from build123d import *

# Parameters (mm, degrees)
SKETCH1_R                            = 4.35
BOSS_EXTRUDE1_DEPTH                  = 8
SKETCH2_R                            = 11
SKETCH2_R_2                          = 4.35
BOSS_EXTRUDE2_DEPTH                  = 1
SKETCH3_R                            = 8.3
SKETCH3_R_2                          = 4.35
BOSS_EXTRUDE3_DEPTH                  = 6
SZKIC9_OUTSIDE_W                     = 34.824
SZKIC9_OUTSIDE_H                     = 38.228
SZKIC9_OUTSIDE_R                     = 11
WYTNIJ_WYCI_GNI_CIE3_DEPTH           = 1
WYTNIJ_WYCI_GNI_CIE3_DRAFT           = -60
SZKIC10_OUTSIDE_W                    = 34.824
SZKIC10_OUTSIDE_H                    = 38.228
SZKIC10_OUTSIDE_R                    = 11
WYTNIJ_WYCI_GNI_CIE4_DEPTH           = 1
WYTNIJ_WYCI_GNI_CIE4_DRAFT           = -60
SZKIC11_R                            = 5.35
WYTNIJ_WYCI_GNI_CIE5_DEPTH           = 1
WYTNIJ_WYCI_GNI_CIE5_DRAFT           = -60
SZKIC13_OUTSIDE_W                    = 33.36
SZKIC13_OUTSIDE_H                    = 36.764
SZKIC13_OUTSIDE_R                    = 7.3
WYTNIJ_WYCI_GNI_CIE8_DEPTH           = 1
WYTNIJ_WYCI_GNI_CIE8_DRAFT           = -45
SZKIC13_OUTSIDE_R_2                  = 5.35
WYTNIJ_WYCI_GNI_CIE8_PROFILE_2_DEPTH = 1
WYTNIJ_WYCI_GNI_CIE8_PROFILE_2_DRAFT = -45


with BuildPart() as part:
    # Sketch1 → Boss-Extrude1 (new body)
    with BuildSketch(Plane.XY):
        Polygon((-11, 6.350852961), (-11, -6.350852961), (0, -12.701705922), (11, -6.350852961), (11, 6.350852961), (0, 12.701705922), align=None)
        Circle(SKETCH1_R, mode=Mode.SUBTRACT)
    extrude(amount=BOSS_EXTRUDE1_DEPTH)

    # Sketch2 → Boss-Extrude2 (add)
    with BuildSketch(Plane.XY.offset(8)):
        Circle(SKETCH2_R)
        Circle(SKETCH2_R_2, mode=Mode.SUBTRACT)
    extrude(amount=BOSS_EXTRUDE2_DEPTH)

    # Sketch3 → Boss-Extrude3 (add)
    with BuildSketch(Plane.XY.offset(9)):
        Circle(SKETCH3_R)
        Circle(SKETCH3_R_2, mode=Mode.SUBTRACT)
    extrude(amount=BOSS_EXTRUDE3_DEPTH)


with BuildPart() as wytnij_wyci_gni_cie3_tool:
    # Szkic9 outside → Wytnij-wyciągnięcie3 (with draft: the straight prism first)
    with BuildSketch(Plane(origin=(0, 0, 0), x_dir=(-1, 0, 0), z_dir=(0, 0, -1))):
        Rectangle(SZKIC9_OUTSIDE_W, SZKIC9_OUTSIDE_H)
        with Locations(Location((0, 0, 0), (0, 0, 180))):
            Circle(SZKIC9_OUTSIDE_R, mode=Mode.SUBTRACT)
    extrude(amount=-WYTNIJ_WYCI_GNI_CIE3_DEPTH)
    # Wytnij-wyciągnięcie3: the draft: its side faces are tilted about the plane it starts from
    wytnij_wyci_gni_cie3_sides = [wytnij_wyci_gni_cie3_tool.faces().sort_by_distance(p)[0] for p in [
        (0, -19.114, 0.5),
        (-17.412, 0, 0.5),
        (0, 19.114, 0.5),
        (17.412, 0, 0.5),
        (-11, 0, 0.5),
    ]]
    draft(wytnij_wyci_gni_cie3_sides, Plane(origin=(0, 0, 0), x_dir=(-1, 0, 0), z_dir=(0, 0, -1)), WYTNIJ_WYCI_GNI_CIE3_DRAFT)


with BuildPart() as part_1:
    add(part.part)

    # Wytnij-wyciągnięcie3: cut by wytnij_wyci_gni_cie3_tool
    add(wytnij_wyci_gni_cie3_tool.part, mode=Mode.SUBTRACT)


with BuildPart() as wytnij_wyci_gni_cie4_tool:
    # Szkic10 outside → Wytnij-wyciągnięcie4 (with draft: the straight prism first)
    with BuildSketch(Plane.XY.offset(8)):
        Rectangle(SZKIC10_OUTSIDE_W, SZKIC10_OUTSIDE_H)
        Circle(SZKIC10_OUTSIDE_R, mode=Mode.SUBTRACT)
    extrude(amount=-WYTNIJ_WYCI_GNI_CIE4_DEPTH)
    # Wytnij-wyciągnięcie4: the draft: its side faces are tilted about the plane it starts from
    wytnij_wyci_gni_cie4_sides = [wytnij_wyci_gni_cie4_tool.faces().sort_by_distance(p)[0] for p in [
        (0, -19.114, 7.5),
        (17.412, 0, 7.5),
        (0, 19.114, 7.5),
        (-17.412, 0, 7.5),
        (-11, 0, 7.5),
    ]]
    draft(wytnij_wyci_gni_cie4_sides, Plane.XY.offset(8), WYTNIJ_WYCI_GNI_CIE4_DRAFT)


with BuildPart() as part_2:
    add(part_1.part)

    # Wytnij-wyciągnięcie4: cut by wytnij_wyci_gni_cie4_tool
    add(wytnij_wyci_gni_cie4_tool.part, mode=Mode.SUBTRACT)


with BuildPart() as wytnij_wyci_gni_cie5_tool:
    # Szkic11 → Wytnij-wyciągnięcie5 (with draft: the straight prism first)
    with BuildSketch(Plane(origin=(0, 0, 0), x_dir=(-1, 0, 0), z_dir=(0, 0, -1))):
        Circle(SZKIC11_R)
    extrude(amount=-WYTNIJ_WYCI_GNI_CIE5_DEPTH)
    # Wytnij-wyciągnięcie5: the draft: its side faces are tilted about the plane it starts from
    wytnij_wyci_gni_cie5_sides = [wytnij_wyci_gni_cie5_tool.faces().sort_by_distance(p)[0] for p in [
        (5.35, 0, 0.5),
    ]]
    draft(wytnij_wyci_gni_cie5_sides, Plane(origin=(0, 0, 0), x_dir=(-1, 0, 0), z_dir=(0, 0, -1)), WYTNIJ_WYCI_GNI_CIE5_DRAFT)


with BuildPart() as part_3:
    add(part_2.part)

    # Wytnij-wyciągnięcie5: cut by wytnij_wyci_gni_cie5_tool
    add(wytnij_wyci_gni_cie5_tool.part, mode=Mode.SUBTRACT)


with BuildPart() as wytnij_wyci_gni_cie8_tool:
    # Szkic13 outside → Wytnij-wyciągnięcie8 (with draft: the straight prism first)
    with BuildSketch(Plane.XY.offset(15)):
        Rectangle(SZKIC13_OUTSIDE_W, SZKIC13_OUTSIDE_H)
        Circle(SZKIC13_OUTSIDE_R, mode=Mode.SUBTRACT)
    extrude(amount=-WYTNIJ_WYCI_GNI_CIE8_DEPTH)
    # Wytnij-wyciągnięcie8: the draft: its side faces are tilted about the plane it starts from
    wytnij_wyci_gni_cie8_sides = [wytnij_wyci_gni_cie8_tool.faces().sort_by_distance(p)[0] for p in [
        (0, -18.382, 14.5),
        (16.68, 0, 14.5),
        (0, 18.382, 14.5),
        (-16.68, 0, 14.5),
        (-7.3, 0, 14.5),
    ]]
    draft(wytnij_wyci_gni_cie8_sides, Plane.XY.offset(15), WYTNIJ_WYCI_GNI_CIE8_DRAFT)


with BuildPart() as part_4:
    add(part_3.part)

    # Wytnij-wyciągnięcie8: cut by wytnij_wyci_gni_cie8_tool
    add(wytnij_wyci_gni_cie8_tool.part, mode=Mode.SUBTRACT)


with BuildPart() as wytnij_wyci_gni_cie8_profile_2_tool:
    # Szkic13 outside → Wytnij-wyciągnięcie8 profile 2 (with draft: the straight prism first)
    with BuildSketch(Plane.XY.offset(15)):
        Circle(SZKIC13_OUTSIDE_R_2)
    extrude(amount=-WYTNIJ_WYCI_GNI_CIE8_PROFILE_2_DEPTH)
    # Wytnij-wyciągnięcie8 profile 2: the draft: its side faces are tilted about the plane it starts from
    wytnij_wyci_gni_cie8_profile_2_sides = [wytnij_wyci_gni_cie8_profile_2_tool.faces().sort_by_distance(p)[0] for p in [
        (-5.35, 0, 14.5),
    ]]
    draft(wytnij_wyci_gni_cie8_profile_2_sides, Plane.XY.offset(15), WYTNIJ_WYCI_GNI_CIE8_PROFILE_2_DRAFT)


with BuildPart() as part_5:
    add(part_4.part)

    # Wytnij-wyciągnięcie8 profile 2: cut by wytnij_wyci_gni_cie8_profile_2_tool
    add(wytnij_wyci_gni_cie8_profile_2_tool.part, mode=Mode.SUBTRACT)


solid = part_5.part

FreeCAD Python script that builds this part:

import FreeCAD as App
import Part
import Sketcher

V = App.Vector
Q = App.Units.Quantity


def faces_at(feature, points):
    """Names of the faces that lie closest to the given points."""
    faces = feature.Shape.Faces
    near = lambda p: min(range(len(faces)), key=lambda i: faces[i].distToShape(Part.Vertex(*p))[0])
    return sorted({f"Face{near(p) + 1}" for p in points})

doc = App.newDocument("Part")
params = doc.addObject("Spreadsheet::Sheet", "Params")
for row, (alias, value) in enumerate([
    ("sketch1_diameter", "8.7 mm"),
    ("pad1_length", "8 mm"),
    ("sketch2_diameter", "22 mm"),
    ("sketch2_diameter2", "8.7 mm"),
    ("pad2_length", "1 mm"),
    ("sketch3_diameter", "16.6 mm"),
    ("sketch3_diameter2", "8.7 mm"),
    ("pad3_length", "6 mm"),
    ("sketch4_diameter", "22 mm"),
    ("pad4_length", "1 mm"),
    ("draft_angle", "60 deg"),
    ("sketch5_diameter", "22 mm"),
    ("pad5_length", "1 mm"),
    ("draft2_angle", "60 deg"),
    ("sketch6_diameter", "10.7 mm"),
    ("pad6_length", "1 mm"),
    ("draft3_angle", "60 deg"),
    ("sketch7_diameter", "14.6 mm"),
    ("sketch7_width", "33.36 mm"),
    ("pad7_length", "1 mm"),
    ("draft4_angle", "45 deg"),
    ("sketch8_diameter", "10.7 mm"),
    ("pad8_length", "1 mm"),
    ("draft5_angle", "45 deg"),
], start=1):
    params.set(f"A{row}", alias)
    params.set(f"B{row}", "=" + value)
    params.setAlias(f"B{row}", alias)

body = doc.addObject("PartDesign::Body", "Body")

sketch1 = body.newObject("Sketcher::SketchObject", "Sketch")
sketch1.AttachmentSupport = (doc.getObject("XY_Plane"), [""])
sketch1.MapMode = "FlatFace"
sketch1.addGeometry(Part.LineSegment(V(-11, 6.4, 0), V(-11, -6.4, 0)), False)
sketch1.addGeometry(Part.LineSegment(V(-11, -6.4, 0), V(0, -12.7, 0)), False)
sketch1.addGeometry(Part.LineSegment(V(0, -12.7, 0), V(11, -6.4, 0)), False)
sketch1.addGeometry(Part.LineSegment(V(11, -6.4, 0), V(11, 6.4, 0)), False)
sketch1.addGeometry(Part.LineSegment(V(11, 6.4, 0), V(0, 12.7, 0)), False)
sketch1.addGeometry(Part.LineSegment(V(0, 12.7, 0), V(-11, 6.4, 0)), False)
sketch1.addGeometry(Part.Circle(V(0, 0, 0), V(0, 0, 1), 4.3), False)
sketch1.addConstraint(Sketcher.Constraint("Coincident", 0, 2, 1, 1))
sketch1.addConstraint(Sketcher.Constraint("Coincident", 1, 2, 2, 1))
sketch1.addConstraint(Sketcher.Constraint("Coincident", 2, 2, 3, 1))
sketch1.addConstraint(Sketcher.Constraint("Coincident", 3, 2, 4, 1))
sketch1.addConstraint(Sketcher.Constraint("Coincident", 4, 2, 5, 1))
sketch1.addConstraint(Sketcher.Constraint("Coincident", 5, 2, 0, 1))
sketch1.addConstraint(Sketcher.Constraint("Vertical", 0))
sketch1.addConstraint(Sketcher.Constraint("Vertical", 3))
sketch1.addConstraint(Sketcher.Constraint("Coincident", 6, 3, -1, 1))
sketch1.addConstraint(Sketcher.Constraint("Symmetric", 0, 2, 3, 2, -1, 1))
sketch1.addConstraint(Sketcher.Constraint("Symmetric", 1, 2, 4, 2, -1, 1))
sketch1.addConstraint(Sketcher.Constraint("PointOnObject", 1, 2, -2))
sketch1.addConstraint(Sketcher.Constraint("Parallel", 2, 5))
sketch1.addConstraint(Sketcher.Constraint("Horizontal", 0, 2, 2, 2))
sketch1.addConstraint(Sketcher.Constraint("Diameter", 6, Q("8.7 mm")))
sketch1.addConstraint(Sketcher.Constraint("Angle", 1, Q("-30 deg")))
sketch1.addConstraint(Sketcher.Constraint("DistanceX", 0, 2, -1, 1, Q("11 mm")))
sketch1.addConstraint(Sketcher.Constraint("DistanceY", 0, 2, 0, 1, Q("12.701706 mm")))
sketch1.setExpression("Constraints[14]", "Params.sketch1_diameter")
pad1 = body.newObject("PartDesign::Pad", "Pad")
pad1.Profile = sketch1
pad1.setExpression("Length", "Params.pad1_length")

sketch2 = body.newObject("Sketcher::SketchObject", "Sketch001")
sketch2.AttachmentSupport = (doc.getObject("XY_Plane"), [""])
sketch2.MapMode = "FlatFace"
sketch2.AttachmentOffset = App.Placement(V(0, 0, 8), App.Rotation())
sketch2.addGeometry(Part.Circle(V(0, 0, 0), V(0, 0, 1), 11), False)
sketch2.addGeometry(Part.Circle(V(0, 0, 0), V(0, 0, 1), 4.3), False)
sketch2.addConstraint(Sketcher.Constraint("Coincident", 0, 3, -1, 1))
sketch2.addConstraint(Sketcher.Constraint("Coincident", 1, 3, -1, 1))
sketch2.addConstraint(Sketcher.Constraint("Diameter", 0, Q("22 mm")))
sketch2.addConstraint(Sketcher.Constraint("Diameter", 1, Q("8.7 mm")))
sketch2.setExpression("Constraints[2]", "Params.sketch2_diameter")
sketch2.setExpression("Constraints[3]", "Params.sketch2_diameter2")
pad2 = body.newObject("PartDesign::Pad", "Pad001")
pad2.Profile = sketch2
pad2.setExpression("Length", "Params.pad2_length")

sketch3 = body.newObject("Sketcher::SketchObject", "Sketch002")
sketch3.AttachmentSupport = (doc.getObject("XY_Plane"), [""])
sketch3.MapMode = "FlatFace"
sketch3.AttachmentOffset = App.Placement(V(0, 0, 9), App.Rotation())
sketch3.addGeometry(Part.Circle(V(0, 0, 0), V(0, 0, 1), 8.3), False)
sketch3.addGeometry(Part.Circle(V(0, 0, 0), V(0, 0, 1), 4.3), False)
sketch3.addConstraint(Sketcher.Constraint("Coincident", 0, 3, -1, 1))
sketch3.addConstraint(Sketcher.Constraint("Coincident", 1, 3, -1, 1))
sketch3.addConstraint(Sketcher.Constraint("Diameter", 0, Q("16.6 mm")))
sketch3.addConstraint(Sketcher.Constraint("Diameter", 1, Q("8.7 mm")))
sketch3.setExpression("Constraints[2]", "Params.sketch3_diameter")
sketch3.setExpression("Constraints[3]", "Params.sketch3_diameter2")
pad3 = body.newObject("PartDesign::Pad", "Pad002")
pad3.Profile = sketch3
pad3.setExpression("Length", "Params.pad3_length")
body2 = doc.addObject("PartDesign::Body", "Body001")

sketch4 = body2.newObject("Sketcher::SketchObject", "Sketch003")
sketch4.AttachmentSupport = (doc.getObject("XY_Plane001"), [""])
sketch4.MapMode = "FlatFace"
sketch4.addGeometry(Part.LineSegment(V(17, 19, 0), V(17, -19, 0)), False)
sketch4.addGeometry(Part.LineSegment(V(17, -19, 0), V(-17, -19, 0)), False)
sketch4.addGeometry(Part.LineSegment(V(-17, -19, 0), V(-17, 19, 0)), False)
sketch4.addGeometry(Part.LineSegment(V(-17, 19, 0), V(17, 19, 0)), False)
sketch4.addGeometry(Part.Circle(V(0, 0, 0), V(0, 0, 1), 11), False)
sketch4.addConstraint(Sketcher.Constraint("Coincident", 0, 2, 1, 1))
sketch4.addConstraint(Sketcher.Constraint("Coincident", 1, 2, 2, 1))
sketch4.addConstraint(Sketcher.Constraint("Coincident", 2, 2, 3, 1))
sketch4.addConstraint(Sketcher.Constraint("Coincident", 3, 2, 0, 1))
sketch4.addConstraint(Sketcher.Constraint("Vertical", 0))
sketch4.addConstraint(Sketcher.Constraint("Horizontal", 1))
sketch4.addConstraint(Sketcher.Constraint("Vertical", 2))
sketch4.addConstraint(Sketcher.Constraint("Horizontal", 3))
sketch4.addConstraint(Sketcher.Constraint("Coincident", 4, 3, -1, 1))
sketch4.addConstraint(Sketcher.Constraint("Symmetric", 0, 2, 2, 2, -1, 1))
sketch4.addConstraint(Sketcher.Constraint("Diameter", 4, Q("22 mm")))
sketch4.addConstraint(Sketcher.Constraint("DistanceX", 1, 2, 1, 1, Q("34.824 mm")))
sketch4.addConstraint(Sketcher.Constraint("DistanceY", 0, 2, 0, 1, Q("38.228 mm")))
sketch4.setExpression("Constraints[10]", "Params.sketch4_diameter")
pad4 = body2.newObject("PartDesign::Pad", "Pad003")
pad4.Profile = sketch4
pad4.setExpression("Length", "Params.pad4_length")
doc.recompute()

draft = body2.newObject("PartDesign::Draft", "Draft")
draft.Base = (pad4, faces_at(pad4, [
    (0, -19.114, 0.5),
    (-17.412, 0, 0.5),
    (0, 19.114, 0.5),
    (17.412, 0, 0.5),
    (-11, 0, 0.5),
]))
draft.NeutralPlane = (doc.getObject("XY_Plane001"), [""])
draft.setExpression("Angle", "Params.draft_angle")
draft.Reversed = False
doc.recompute()

boolean = body.newObject("PartDesign::Boolean", "Boolean")
boolean.Type = "Cut"
boolean.addObjects([body2])
body3 = doc.addObject("PartDesign::Body", "Body002")

sketch5 = body3.newObject("Sketcher::SketchObject", "Sketch004")
sketch5.AttachmentSupport = (doc.getObject("XY_Plane002"), [""])
sketch5.MapMode = "FlatFace"
sketch5.AttachmentOffset = App.Placement(V(0, 0, 8), App.Rotation())
sketch5.addGeometry(Part.LineSegment(V(-17, 19, 0), V(-17, -19, 0)), False)
sketch5.addGeometry(Part.LineSegment(V(-17, -19, 0), V(17, -19, 0)), False)
sketch5.addGeometry(Part.LineSegment(V(17, -19, 0), V(17, 19, 0)), False)
sketch5.addGeometry(Part.LineSegment(V(17, 19, 0), V(-17, 19, 0)), False)
sketch5.addGeometry(Part.Circle(V(0, 0, 0), V(0, 0, 1), 11), False)
sketch5.addConstraint(Sketcher.Constraint("Coincident", 0, 2, 1, 1))
sketch5.addConstraint(Sketcher.Constraint("Coincident", 1, 2, 2, 1))
sketch5.addConstraint(Sketcher.Constraint("Coincident", 2, 2, 3, 1))
sketch5.addConstraint(Sketcher.Constraint("Coincident", 3, 2, 0, 1))
sketch5.addConstraint(Sketcher.Constraint("Vertical", 0))
sketch5.addConstraint(Sketcher.Constraint("Horizontal", 1))
sketch5.addConstraint(Sketcher.Constraint("Vertical", 2))
sketch5.addConstraint(Sketcher.Constraint("Horizontal", 3))
sketch5.addConstraint(Sketcher.Constraint("Coincident", 4, 3, -1, 1))
sketch5.addConstraint(Sketcher.Constraint("Symmetric", 0, 2, 2, 2, -1, 1))
sketch5.addConstraint(Sketcher.Constraint("Diameter", 4, Q("22 mm")))
sketch5.addConstraint(Sketcher.Constraint("DistanceX", 1, 1, 1, 2, Q("34.824 mm")))
sketch5.addConstraint(Sketcher.Constraint("DistanceY", 0, 2, 0, 1, Q("38.228 mm")))
sketch5.setExpression("Constraints[10]", "Params.sketch5_diameter")
pad5 = body3.newObject("PartDesign::Pad", "Pad004")
pad5.Profile = sketch5
pad5.setExpression("Length", "Params.pad5_length")
pad5.Reversed = True
doc.recompute()

datumplane = body3.newObject("PartDesign::Plane", "DatumPlane")
datumplane.AttachmentSupport = (doc.getObject("XY_Plane002"), [""])
datumplane.MapMode = "FlatFace"
datumplane.AttachmentOffset = App.Placement(V(0, 0, 8), App.Rotation())
draft2 = body3.newObject("PartDesign::Draft", "Draft001")
draft2.Base = (pad5, faces_at(pad5, [
    (0, -19.114, 7.5),
    (17.412, 0, 7.5),
    (0, 19.114, 7.5),
    (-17.412, 0, 7.5),
    (-11, 0, 7.5),
]))
draft2.NeutralPlane = (datumplane, [""])
draft2.setExpression("Angle", "Params.draft2_angle")
draft2.Reversed = True
doc.recompute()

boolean2 = body.newObject("PartDesign::Boolean", "Boolean001")
boolean2.Type = "Cut"
boolean2.addObjects([body3])
body4 = doc.addObject("PartDesign::Body", "Body003")

sketch6 = body4.newObject("Sketcher::SketchObject", "Sketch005")
sketch6.AttachmentSupport = (doc.getObject("XY_Plane003"), [""])
sketch6.MapMode = "FlatFace"
sketch6.addGeometry(Part.Circle(V(0, 0, 0), V(0, 0, 1), 5), False)
sketch6.addConstraint(Sketcher.Constraint("Coincident", 0, 3, -1, 1))
sketch6.addConstraint(Sketcher.Constraint("Diameter", 0, Q("10.7 mm")))
sketch6.setExpression("Constraints[1]", "Params.sketch6_diameter")
pad6 = body4.newObject("PartDesign::Pad", "Pad005")
pad6.Profile = sketch6
pad6.setExpression("Length", "Params.pad6_length")
doc.recompute()

draft3 = body4.newObject("PartDesign::Draft", "Draft002")
draft3.Base = (pad6, faces_at(pad6, [(5.35, 0, 0.5)]))
draft3.NeutralPlane = (doc.getObject("XY_Plane003"), [""])
draft3.setExpression("Angle", "Params.draft3_angle")
draft3.Reversed = False
doc.recompute()

boolean3 = body.newObject("PartDesign::Boolean", "Boolean002")
boolean3.Type = "Cut"
boolean3.addObjects([body4])
body5 = doc.addObject("PartDesign::Body", "Body004")

sketch7 = body5.newObject("Sketcher::SketchObject", "Sketch006")
sketch7.AttachmentSupport = (doc.getObject("XY_Plane004"), [""])
sketch7.MapMode = "FlatFace"
sketch7.AttachmentOffset = App.Placement(V(0, 0, 15), App.Rotation())
sketch7.addGeometry(Part.LineSegment(V(-17, 18, 0), V(-17, -18, 0)), False)
sketch7.addGeometry(Part.LineSegment(V(-17, -18, 0), V(17, -18, 0)), False)
sketch7.addGeometry(Part.LineSegment(V(17, -18, 0), V(17, 18, 0)), False)
sketch7.addGeometry(Part.LineSegment(V(17, 18, 0), V(-17, 18, 0)), False)
sketch7.addGeometry(Part.Circle(V(0, 0, 0), V(0, 0, 1), 7), False)
sketch7.addConstraint(Sketcher.Constraint("Coincident", 0, 2, 1, 1))
sketch7.addConstraint(Sketcher.Constraint("Coincident", 1, 2, 2, 1))
sketch7.addConstraint(Sketcher.Constraint("Coincident", 2, 2, 3, 1))
sketch7.addConstraint(Sketcher.Constraint("Coincident", 3, 2, 0, 1))
sketch7.addConstraint(Sketcher.Constraint("Vertical", 0))
sketch7.addConstraint(Sketcher.Constraint("Horizontal", 1))
sketch7.addConstraint(Sketcher.Constraint("Vertical", 2))
sketch7.addConstraint(Sketcher.Constraint("Horizontal", 3))
sketch7.addConstraint(Sketcher.Constraint("Coincident", 4, 3, -1, 1))
sketch7.addConstraint(Sketcher.Constraint("Symmetric", 0, 2, 2, 2, -1, 1))
sketch7.addConstraint(Sketcher.Constraint("Diameter", 4, Q("14.6 mm")))
sketch7.addConstraint(Sketcher.Constraint("DistanceX", 1, 1, 1, 2, Q("33.36 mm")))
sketch7.addConstraint(Sketcher.Constraint("DistanceY", 0, 2, 0, 1, Q("36.764 mm")))
sketch7.setExpression("Constraints[10]", "Params.sketch7_diameter")
sketch7.setExpression("Constraints[11]", "Params.sketch7_width")
pad7 = body5.newObject("PartDesign::Pad", "Pad006")
pad7.Profile = sketch7
pad7.setExpression("Length", "Params.pad7_length")
pad7.Reversed = True
doc.recompute()

datumplane2 = body5.newObject("PartDesign::Plane", "DatumPlane001")
datumplane2.AttachmentSupport = (doc.getObject("XY_Plane004"), [""])
datumplane2.MapMode = "FlatFace"
datumplane2.AttachmentOffset = App.Placement(V(0, 0, 15), App.Rotation())
draft4 = body5.newObject("PartDesign::Draft", "Draft003")
draft4.Base = (pad7, faces_at(pad7, [
    (0, -18.382, 14.5),
    (16.68, 0, 14.5),
    (0, 18.382, 14.5),
    (-16.68, 0, 14.5),
    (-7.3, 0, 14.5),
]))
draft4.NeutralPlane = (datumplane2, [""])
draft4.setExpression("Angle", "Params.draft4_angle")
draft4.Reversed = True
doc.recompute()

boolean4 = body.newObject("PartDesign::Boolean", "Boolean003")
boolean4.Type = "Cut"
boolean4.addObjects([body5])
body6 = doc.addObject("PartDesign::Body", "Body005")

sketch8 = body6.newObject("Sketcher::SketchObject", "Sketch007")
sketch8.AttachmentSupport = (doc.getObject("XY_Plane005"), [""])
sketch8.MapMode = "FlatFace"
sketch8.AttachmentOffset = App.Placement(V(0, 0, 15), App.Rotation())
sketch8.addGeometry(Part.Circle(V(0, 0, 0), V(0, 0, 1), 5), False)
sketch8.addConstraint(Sketcher.Constraint("Coincident", 0, 3, -1, 1))
sketch8.addConstraint(Sketcher.Constraint("Diameter", 0, Q("10.7 mm")))
sketch8.setExpression("Constraints[1]", "Params.sketch8_diameter")
pad8 = body6.newObject("PartDesign::Pad", "Pad007")
pad8.Profile = sketch8
pad8.setExpression("Length", "Params.pad8_length")
pad8.Reversed = True
doc.recompute()

datumplane3 = body6.newObject("PartDesign::Plane", "DatumPlane002")
datumplane3.AttachmentSupport = (doc.getObject("XY_Plane005"), [""])
datumplane3.MapMode = "FlatFace"
datumplane3.AttachmentOffset = App.Placement(V(0, 0, 15), App.Rotation())
draft5 = body6.newObject("PartDesign::Draft", "Draft004")
draft5.Base = (pad8, faces_at(pad8, [(-5.35, 0, 14.5)]))
draft5.NeutralPlane = (datumplane3, [""])
draft5.setExpression("Angle", "Params.draft5_angle")
draft5.Reversed = True
doc.recompute()

boolean5 = body.newObject("PartDesign::Boolean", "Boolean004")
boolean5.Type = "Cut"
boolean5.addObjects([body6])

doc.recompute()
